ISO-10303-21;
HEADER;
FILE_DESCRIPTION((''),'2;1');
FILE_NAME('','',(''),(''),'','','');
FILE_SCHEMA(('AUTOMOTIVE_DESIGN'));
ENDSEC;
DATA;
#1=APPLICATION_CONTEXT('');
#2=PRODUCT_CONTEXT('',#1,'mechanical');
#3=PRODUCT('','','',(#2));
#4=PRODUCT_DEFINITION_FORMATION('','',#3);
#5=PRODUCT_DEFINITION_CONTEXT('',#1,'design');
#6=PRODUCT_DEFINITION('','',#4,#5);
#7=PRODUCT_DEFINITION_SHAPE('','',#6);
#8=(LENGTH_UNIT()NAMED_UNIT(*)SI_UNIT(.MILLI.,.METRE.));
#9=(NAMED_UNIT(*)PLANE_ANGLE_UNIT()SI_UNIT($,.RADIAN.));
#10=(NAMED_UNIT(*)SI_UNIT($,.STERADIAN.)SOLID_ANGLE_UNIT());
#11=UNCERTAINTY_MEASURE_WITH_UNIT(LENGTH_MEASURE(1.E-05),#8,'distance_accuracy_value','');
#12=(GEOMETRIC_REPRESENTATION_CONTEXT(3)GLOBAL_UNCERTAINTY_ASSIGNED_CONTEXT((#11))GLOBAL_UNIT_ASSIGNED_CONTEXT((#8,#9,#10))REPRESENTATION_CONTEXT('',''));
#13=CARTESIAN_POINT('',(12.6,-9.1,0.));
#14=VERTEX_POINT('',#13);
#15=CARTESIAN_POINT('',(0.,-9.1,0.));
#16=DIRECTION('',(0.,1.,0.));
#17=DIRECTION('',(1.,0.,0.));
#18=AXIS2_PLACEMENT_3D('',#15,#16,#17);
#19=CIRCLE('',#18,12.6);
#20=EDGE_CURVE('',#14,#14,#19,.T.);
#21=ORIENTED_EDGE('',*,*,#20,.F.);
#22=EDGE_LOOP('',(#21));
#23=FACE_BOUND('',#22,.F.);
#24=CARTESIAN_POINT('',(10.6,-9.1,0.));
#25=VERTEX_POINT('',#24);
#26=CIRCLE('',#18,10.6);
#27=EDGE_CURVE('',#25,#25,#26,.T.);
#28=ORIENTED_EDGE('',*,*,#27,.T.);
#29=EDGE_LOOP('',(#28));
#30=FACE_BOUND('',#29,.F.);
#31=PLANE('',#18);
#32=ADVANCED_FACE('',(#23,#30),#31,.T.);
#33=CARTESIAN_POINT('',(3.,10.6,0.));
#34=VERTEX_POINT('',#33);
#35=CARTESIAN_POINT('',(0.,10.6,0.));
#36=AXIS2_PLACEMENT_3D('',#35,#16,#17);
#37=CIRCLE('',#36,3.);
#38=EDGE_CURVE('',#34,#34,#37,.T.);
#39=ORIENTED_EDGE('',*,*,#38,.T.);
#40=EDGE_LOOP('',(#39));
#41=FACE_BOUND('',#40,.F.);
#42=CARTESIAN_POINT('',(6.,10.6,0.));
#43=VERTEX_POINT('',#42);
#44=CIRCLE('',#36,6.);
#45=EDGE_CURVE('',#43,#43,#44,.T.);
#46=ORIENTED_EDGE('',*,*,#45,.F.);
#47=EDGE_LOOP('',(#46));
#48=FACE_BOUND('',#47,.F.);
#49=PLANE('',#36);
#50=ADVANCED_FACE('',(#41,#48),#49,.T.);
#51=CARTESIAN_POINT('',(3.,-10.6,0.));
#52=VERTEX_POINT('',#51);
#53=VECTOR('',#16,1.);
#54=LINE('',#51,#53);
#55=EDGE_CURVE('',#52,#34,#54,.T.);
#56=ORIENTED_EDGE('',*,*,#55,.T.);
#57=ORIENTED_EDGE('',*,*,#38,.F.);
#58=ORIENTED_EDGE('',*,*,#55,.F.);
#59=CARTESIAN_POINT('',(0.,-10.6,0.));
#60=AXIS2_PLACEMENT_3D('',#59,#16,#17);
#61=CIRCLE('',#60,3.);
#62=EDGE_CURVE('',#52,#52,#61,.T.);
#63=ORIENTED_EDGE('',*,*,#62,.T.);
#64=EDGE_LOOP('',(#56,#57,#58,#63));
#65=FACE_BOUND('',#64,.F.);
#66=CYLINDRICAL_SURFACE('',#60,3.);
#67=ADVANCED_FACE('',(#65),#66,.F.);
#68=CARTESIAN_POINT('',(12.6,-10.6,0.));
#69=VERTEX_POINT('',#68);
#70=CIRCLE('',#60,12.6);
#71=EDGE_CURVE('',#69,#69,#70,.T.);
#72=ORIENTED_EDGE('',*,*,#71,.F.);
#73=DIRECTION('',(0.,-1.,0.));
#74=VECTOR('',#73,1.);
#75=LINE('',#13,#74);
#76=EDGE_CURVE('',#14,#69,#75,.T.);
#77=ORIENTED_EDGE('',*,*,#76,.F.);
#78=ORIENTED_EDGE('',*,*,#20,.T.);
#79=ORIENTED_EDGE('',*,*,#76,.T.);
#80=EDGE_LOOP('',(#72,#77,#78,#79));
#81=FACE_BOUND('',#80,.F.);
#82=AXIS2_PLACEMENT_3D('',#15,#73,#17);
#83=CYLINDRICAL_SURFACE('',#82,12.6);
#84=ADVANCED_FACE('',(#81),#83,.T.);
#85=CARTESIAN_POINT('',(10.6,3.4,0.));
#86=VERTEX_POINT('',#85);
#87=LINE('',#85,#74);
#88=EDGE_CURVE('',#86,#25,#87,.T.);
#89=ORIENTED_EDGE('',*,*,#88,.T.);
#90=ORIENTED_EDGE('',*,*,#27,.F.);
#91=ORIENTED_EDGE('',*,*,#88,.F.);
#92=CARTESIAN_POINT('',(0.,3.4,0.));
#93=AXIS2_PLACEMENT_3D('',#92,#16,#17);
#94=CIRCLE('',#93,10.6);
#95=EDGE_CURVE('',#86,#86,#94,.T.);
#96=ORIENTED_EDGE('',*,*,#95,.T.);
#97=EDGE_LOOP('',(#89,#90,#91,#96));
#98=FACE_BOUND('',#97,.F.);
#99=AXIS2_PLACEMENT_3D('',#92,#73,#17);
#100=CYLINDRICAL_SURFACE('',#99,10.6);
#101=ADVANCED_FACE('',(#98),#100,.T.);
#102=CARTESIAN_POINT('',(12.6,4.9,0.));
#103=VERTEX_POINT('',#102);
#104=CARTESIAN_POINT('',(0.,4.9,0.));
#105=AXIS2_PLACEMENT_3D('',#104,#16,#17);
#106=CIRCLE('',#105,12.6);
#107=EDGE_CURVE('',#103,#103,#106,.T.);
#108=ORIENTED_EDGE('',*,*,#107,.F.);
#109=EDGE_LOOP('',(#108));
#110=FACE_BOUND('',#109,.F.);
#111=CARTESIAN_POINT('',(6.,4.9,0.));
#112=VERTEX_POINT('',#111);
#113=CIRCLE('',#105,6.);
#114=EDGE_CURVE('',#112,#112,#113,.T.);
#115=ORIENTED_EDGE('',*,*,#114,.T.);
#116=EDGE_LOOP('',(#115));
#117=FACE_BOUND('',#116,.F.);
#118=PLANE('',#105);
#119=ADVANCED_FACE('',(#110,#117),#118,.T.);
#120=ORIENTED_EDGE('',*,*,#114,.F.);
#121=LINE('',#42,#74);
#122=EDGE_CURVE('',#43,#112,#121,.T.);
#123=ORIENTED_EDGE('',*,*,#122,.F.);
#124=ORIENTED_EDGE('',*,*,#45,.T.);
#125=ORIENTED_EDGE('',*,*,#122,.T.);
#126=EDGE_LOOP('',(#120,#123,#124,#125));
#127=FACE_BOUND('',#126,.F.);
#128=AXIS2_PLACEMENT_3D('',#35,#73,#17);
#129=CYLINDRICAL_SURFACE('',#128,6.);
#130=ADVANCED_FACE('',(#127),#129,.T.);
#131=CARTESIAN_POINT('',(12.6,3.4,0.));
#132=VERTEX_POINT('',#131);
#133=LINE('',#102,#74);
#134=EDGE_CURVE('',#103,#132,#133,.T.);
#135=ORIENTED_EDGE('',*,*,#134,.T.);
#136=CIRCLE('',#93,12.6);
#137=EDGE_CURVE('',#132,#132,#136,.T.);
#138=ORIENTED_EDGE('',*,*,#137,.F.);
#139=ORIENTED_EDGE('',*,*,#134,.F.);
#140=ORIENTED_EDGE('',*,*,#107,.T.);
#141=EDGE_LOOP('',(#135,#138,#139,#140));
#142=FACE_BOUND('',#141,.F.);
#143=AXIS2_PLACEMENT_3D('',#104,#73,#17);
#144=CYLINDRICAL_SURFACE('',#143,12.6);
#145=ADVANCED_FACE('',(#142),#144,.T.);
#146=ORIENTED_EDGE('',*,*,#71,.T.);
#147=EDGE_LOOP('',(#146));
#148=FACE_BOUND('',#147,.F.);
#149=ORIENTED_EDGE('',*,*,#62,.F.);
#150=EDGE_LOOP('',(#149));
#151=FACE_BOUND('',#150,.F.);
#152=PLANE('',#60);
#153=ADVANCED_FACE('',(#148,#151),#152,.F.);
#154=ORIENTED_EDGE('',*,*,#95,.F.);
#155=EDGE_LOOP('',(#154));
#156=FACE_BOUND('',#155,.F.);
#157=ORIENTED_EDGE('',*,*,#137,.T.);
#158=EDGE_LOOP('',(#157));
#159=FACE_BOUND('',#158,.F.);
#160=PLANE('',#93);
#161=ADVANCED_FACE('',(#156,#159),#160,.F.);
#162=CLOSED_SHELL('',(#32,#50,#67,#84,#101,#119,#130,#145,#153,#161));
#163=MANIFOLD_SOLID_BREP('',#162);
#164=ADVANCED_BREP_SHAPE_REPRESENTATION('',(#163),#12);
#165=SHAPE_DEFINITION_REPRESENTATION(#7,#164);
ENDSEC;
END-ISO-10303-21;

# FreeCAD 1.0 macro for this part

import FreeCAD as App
import Part
import Sketcher

V = App.Vector


def add_polygon(sketch, points):
    """Adds a closed chain of lines whose ends are joined by coincident constraints."""
    first, n = sketch.GeometryCount, len(points)
    for a, b in zip(points, points[1:] + points[:1]):
        sketch.addGeometry(Part.LineSegment(App.Vector(*a, 0), App.Vector(*b, 0)), False)
    for i in range(n):
        sketch.addConstraint(Sketcher.Constraint("Coincident", first + i, 2, first + (i + 1) % n, 1))

doc = App.newDocument("Part")
params = doc.addObject("Spreadsheet::Sheet", "Params")
for row, (alias, value) in enumerate([
    ("sketch1_width", "2 mm"),
    ("sketch1_width2", "3 mm"),
    ("sketch1_width3", "9.6 mm"),
    ("sketch1_height", "21.2 mm"),
    ("sketch1_height2", "1.5 mm"),
    ("revolution_angle", "360 deg"),
], start=1):
    params.set(f"A{row}", alias)
    params.set(f"B{row}", "=" + value)
    params.setAlias(f"B{row}", alias)

body = doc.addObject("PartDesign::Body", "Body")

# Sketch on XY plane
sketch1 = body.newObject("Sketcher::SketchObject", "Sketch")
sketch1.AttachmentSupport = (doc.getObject("XY_Plane"), [""])
sketch1.MapMode = "FlatFace"
add_polygon(sketch1, [(3, 10.6), (3, -10.6), (12.6, -10.6), (12.6, -9.1), (10.6, -9.1), (10.6, 3.4), (12.6, 3.4), (12.6, 4.9), (6, 4.9), (6, 10.6)])  # lines 0-9
sketch1.addConstraint([
    Sketcher.Constraint("Vertical", 0),
    Sketcher.Constraint("Horizontal", 1),
    Sketcher.Constraint("Vertical", 2),
    Sketcher.Constraint("Horizontal", 3),
    Sketcher.Constraint("Vertical", 4),
    Sketcher.Constraint("Horizontal", 5),
    Sketcher.Constraint("Vertical", 6),
    Sketcher.Constraint("Horizontal", 7),
    Sketcher.Constraint("Vertical", 8),
    Sketcher.Constraint("Horizontal", 9),
    Sketcher.Constraint("Vertical", 2, 2, 5, 2),
    Sketcher.Constraint("Equal", 2, 6),
    Sketcher.Constraint("DistanceX", 3, 2, 3, 1, 2.0),
    Sketcher.Constraint("DistanceX", 9, 2, 9, 1, 3.0),
    Sketcher.Constraint("DistanceX", 1, 1, 1, 2, 9.6),
    Sketcher.Constraint("DistanceY", 0, 2, 0, 1, 21.2),
    Sketcher.Constraint("DistanceY", 2, 1, 2, 2, 1.5),
    Sketcher.Constraint("DistanceY", 4, 1, 4, 2, 12.5),
    Sketcher.Constraint("DistanceX", -1, 1, 0, 2, 3.0),
    Sketcher.Constraint("DistanceY", 0, 2, -1, 1, 10.6),
])
sketch1.setExpression("Constraints[22]", "Params.sketch1_width")
sketch1.setExpression("Constraints[23]", "Params.sketch1_width2")
sketch1.setExpression("Constraints[24]", "Params.sketch1_width3")
sketch1.setExpression("Constraints[25]", "Params.sketch1_height")
sketch1.setExpression("Constraints[26]", "Params.sketch1_height2")
revolution = body.newObject("PartDesign::Revolution", "Revolution")
revolution.Profile = sketch1
revolution.ReferenceAxis = (sketch1, ["V_Axis"])
revolution.setExpression("Angle", "Params.revolution_angle")

doc.recompute()
